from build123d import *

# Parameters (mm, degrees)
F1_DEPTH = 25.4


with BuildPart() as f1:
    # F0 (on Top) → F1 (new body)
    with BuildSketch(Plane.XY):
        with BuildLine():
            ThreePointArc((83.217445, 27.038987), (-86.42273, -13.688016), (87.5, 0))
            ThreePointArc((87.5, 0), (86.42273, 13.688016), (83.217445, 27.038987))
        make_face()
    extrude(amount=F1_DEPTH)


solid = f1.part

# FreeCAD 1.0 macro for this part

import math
import FreeCAD as App
import Part
import Sketcher
Q = App.Units.Quantity

doc = App.newDocument("Part")
body = doc.addObject("PartDesign::Body", "Body")

# Sketch on XY plane
sketch1 = body.newObject("Sketcher::SketchObject", "Sketch")
sketch1.AttachmentSupport = (doc.getObject("XY_Plane"), [""])
sketch1.MapMode = "FlatFace"
sketch1.addGeometry([
    Part.ArcOfCircle(Part.Circle(App.Vector(0, -0.000001, 0), App.Vector(0, 0, 1), 87.5), math.radians(18), math.radians(360)),
    Part.ArcOfCircle(Part.Circle(App.Vector(0.000026, 0.000004, 0), App.Vector(0, 0, 1), 87.499974), math.radians(-0.000002), math.radians(18.000003)),
], False)
sketch1.addConstraint([
    Sketcher.Constraint("Coincident", 0, 1, 1, 2),
    Sketcher.Constraint("Coincident", 1, 1, 0, 2),
    Sketcher.Constraint("Coincident", 0, 3, -1, 1),
    Sketcher.Constraint("PointOnObject", 1, 1, -1),
    Sketcher.Constraint("Radius", 0, Q("87.5 mm")),
    Sketcher.Constraint("Radius", 1, Q("87.499974 mm")),
    Sketcher.Constraint("DistanceX", 1, 3, 0, 1, Q("83.217419 mm")),
])
pad1 = body.newObject("PartDesign::Pad", "Pad")
pad1.Profile = sketch1
pad1.Length = 25.4

doc.recompute()
